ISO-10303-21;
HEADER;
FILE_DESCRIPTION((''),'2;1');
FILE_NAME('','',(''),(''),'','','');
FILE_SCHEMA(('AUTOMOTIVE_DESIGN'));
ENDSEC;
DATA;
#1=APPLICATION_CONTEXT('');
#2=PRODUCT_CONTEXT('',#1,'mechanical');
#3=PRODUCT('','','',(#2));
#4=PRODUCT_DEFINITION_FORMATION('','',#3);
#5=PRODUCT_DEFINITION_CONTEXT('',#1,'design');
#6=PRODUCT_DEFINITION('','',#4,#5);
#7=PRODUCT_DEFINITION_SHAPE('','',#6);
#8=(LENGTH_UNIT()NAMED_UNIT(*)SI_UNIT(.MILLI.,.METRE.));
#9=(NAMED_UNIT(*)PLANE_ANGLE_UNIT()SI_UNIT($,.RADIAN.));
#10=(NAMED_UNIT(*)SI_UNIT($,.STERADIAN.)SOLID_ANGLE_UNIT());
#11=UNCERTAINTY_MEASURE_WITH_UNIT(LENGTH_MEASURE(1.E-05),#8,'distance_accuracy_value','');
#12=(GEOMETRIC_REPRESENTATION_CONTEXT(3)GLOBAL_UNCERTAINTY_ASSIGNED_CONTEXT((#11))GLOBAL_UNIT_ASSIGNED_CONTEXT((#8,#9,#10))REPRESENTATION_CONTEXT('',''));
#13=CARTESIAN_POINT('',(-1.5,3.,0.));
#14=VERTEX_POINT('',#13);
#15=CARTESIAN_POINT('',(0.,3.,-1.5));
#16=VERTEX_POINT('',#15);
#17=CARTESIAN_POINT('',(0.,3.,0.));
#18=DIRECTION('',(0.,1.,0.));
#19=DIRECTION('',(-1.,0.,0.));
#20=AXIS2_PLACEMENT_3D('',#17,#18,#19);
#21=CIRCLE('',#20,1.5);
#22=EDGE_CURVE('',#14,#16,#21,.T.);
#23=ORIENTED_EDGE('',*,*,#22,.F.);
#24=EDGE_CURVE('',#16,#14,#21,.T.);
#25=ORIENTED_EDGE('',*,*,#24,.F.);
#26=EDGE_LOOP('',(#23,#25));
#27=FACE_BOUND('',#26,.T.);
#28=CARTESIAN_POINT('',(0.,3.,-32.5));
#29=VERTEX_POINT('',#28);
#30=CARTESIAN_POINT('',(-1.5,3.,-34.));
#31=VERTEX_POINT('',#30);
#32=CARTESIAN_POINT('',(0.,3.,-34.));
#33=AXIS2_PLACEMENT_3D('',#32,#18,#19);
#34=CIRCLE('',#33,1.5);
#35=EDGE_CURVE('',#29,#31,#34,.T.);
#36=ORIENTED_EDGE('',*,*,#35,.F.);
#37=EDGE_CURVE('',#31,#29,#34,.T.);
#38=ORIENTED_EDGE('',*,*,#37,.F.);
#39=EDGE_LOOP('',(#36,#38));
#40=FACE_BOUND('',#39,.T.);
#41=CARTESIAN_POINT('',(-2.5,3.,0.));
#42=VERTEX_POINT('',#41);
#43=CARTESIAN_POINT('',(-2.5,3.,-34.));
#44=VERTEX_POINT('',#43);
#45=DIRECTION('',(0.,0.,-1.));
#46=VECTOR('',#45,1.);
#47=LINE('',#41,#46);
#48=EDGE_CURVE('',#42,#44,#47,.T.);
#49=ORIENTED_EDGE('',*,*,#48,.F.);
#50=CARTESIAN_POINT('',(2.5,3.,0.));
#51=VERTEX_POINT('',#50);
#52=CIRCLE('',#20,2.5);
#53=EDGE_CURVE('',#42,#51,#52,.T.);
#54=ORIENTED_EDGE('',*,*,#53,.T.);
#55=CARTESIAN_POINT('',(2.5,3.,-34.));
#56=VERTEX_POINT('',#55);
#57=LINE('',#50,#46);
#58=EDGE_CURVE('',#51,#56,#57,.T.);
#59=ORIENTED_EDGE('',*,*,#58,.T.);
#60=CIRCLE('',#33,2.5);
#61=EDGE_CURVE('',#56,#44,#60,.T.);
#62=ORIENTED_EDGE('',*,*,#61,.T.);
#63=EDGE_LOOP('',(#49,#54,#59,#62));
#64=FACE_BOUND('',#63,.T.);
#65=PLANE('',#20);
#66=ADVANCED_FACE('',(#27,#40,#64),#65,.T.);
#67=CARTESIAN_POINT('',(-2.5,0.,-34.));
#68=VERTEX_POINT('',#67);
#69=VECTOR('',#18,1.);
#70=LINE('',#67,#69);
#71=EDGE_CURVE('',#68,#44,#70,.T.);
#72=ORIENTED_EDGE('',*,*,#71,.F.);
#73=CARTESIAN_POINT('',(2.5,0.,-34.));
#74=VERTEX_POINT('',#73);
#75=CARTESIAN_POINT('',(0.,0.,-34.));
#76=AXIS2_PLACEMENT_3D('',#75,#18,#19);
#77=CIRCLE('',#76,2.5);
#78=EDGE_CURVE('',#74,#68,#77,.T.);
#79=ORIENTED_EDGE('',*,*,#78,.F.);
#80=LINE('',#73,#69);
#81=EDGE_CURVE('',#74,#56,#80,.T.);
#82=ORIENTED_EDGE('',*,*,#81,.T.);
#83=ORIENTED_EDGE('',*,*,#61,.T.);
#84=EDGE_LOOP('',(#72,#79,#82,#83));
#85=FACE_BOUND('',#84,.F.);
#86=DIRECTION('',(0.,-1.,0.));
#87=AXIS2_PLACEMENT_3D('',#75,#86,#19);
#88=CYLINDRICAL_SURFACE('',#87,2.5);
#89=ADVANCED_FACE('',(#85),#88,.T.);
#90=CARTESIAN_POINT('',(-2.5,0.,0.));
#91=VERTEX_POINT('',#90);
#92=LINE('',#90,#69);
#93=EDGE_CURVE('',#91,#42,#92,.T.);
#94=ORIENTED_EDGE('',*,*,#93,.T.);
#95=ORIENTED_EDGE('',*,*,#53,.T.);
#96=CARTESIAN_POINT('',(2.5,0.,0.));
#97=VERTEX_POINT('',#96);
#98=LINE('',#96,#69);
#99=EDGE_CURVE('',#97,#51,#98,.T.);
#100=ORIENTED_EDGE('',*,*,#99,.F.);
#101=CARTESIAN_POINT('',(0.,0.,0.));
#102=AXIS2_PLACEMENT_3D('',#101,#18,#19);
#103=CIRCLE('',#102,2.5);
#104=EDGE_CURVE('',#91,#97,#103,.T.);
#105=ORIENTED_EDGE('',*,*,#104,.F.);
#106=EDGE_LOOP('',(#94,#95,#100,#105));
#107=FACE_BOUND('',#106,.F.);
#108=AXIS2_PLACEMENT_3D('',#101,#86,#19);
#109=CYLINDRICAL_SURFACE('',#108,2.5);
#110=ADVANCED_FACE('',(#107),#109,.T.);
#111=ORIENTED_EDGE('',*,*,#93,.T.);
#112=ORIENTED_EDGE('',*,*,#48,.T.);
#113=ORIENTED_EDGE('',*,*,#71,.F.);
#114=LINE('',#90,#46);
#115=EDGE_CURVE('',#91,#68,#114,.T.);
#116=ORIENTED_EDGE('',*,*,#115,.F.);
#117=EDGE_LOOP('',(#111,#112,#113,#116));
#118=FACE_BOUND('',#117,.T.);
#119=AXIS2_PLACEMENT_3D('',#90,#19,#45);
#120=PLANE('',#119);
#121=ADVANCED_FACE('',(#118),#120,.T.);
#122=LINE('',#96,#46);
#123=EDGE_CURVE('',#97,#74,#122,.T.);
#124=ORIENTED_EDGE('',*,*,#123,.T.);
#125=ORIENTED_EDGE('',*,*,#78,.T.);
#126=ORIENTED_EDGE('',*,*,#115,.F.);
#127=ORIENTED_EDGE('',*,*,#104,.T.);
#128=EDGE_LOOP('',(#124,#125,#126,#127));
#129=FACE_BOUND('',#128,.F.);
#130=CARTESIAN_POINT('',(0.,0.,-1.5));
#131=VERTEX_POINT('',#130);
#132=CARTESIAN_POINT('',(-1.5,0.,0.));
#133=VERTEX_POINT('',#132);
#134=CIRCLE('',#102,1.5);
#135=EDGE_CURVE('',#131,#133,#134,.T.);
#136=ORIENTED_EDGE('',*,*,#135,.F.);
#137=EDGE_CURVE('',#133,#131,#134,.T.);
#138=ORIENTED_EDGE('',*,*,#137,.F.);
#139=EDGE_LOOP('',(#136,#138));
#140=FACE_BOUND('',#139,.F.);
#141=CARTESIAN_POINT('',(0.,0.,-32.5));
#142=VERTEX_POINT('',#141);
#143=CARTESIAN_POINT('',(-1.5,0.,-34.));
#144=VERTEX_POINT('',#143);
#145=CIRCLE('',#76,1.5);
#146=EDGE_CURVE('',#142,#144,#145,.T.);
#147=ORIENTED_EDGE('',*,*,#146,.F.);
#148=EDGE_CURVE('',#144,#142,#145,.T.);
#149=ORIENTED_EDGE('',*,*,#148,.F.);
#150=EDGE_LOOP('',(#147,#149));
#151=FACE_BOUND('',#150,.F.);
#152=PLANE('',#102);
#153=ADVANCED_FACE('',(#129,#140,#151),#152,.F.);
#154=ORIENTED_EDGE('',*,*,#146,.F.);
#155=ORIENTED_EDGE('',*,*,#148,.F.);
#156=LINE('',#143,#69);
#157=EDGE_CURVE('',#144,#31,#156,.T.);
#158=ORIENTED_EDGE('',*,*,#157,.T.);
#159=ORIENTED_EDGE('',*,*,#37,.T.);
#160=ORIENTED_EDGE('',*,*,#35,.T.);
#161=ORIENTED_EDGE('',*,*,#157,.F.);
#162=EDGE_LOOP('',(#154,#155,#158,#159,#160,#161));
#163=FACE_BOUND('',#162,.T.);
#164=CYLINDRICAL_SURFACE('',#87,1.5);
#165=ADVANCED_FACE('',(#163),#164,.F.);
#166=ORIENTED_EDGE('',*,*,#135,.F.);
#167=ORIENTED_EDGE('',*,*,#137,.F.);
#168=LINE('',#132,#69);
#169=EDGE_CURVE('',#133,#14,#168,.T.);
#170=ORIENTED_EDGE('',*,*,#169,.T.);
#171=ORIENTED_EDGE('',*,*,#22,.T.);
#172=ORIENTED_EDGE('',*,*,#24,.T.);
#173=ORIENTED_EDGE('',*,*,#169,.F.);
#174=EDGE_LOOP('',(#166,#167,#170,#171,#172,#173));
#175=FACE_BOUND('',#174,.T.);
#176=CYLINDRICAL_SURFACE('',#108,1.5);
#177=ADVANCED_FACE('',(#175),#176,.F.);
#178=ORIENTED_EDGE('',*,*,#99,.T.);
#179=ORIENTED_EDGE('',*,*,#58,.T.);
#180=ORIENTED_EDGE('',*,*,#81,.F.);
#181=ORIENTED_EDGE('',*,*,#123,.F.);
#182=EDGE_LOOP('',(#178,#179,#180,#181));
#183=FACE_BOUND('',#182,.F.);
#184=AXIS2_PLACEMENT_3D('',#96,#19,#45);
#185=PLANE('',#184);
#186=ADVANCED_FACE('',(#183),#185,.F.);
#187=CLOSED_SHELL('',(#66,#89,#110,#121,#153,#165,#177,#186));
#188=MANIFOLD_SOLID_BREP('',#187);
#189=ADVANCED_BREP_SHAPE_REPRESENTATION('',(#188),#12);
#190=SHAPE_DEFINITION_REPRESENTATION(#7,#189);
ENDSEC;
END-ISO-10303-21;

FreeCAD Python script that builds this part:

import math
import FreeCAD as App
import Part
import Sketcher

V = App.Vector

doc = App.newDocument("Part")
body = doc.addObject("PartDesign::Body", "Body")

# Sketch on XZ plane
sketch1 = body.newObject("Sketcher::SketchObject", "Sketch")
sketch1.AttachmentSupport = (doc.getObject("XZ_Plane"), [""])
sketch1.MapMode = "FlatFace"
sketch1.addGeometry([
    Part.ArcOfCircle(Part.Circle(V(0, 0, 0), V(0, 0, 1), 2.5), math.radians(0), math.radians(180)),  # 0
    Part.LineSegment(V(2.5, 0, 0), V(2.5, -34, 0)),  # 1
    Part.ArcOfCircle(Part.Circle(V(0, -34, 0), V(0, 0, 1), 2.5), math.radians(180), math.radians(360)),  # 2
    Part.LineSegment(V(-2.5, -34, 0), V(-2.5, 0, 0)),  # 3
    Part.Circle(V(0, 0, 0), V(0, 0, 1), 1.5),  # 4
    Part.Circle(V(0, -34, 0), V(0, 0, 1), 1.5),  # 5
], False)
sketch1.addConstraint([
    Sketcher.Constraint("Tangent", 0, 1, 1, 1),
    Sketcher.Constraint("Tangent", 1, 2, 2, 2),
    Sketcher.Constraint("Tangent", 2, 1, 3, 1),
    Sketcher.Constraint("Tangent", 3, 2, 0, 2),
    Sketcher.Constraint("Vertical", 1),
    Sketcher.Constraint("Vertical", 3),
    Sketcher.Constraint("Coincident", 0, 3, -1, 1),
    Sketcher.Constraint("Coincident", 4, 3, -1, 1),
    Sketcher.Constraint("Coincident", 5, 3, 2, 3),
    Sketcher.Constraint("Equal", 4, 5),
    Sketcher.Constraint("Diameter", 4, 3.0),
    Sketcher.Constraint("Radius", 0, 2.5),
    Sketcher.Constraint("DistanceY", 1, 2, 1, 1, 34.0),
])
pad1 = body.newObject("PartDesign::Pad", "Pad")
pad1.Profile = sketch1
pad1.Length = 3
pad1.Reversed = True

doc.recompute()
